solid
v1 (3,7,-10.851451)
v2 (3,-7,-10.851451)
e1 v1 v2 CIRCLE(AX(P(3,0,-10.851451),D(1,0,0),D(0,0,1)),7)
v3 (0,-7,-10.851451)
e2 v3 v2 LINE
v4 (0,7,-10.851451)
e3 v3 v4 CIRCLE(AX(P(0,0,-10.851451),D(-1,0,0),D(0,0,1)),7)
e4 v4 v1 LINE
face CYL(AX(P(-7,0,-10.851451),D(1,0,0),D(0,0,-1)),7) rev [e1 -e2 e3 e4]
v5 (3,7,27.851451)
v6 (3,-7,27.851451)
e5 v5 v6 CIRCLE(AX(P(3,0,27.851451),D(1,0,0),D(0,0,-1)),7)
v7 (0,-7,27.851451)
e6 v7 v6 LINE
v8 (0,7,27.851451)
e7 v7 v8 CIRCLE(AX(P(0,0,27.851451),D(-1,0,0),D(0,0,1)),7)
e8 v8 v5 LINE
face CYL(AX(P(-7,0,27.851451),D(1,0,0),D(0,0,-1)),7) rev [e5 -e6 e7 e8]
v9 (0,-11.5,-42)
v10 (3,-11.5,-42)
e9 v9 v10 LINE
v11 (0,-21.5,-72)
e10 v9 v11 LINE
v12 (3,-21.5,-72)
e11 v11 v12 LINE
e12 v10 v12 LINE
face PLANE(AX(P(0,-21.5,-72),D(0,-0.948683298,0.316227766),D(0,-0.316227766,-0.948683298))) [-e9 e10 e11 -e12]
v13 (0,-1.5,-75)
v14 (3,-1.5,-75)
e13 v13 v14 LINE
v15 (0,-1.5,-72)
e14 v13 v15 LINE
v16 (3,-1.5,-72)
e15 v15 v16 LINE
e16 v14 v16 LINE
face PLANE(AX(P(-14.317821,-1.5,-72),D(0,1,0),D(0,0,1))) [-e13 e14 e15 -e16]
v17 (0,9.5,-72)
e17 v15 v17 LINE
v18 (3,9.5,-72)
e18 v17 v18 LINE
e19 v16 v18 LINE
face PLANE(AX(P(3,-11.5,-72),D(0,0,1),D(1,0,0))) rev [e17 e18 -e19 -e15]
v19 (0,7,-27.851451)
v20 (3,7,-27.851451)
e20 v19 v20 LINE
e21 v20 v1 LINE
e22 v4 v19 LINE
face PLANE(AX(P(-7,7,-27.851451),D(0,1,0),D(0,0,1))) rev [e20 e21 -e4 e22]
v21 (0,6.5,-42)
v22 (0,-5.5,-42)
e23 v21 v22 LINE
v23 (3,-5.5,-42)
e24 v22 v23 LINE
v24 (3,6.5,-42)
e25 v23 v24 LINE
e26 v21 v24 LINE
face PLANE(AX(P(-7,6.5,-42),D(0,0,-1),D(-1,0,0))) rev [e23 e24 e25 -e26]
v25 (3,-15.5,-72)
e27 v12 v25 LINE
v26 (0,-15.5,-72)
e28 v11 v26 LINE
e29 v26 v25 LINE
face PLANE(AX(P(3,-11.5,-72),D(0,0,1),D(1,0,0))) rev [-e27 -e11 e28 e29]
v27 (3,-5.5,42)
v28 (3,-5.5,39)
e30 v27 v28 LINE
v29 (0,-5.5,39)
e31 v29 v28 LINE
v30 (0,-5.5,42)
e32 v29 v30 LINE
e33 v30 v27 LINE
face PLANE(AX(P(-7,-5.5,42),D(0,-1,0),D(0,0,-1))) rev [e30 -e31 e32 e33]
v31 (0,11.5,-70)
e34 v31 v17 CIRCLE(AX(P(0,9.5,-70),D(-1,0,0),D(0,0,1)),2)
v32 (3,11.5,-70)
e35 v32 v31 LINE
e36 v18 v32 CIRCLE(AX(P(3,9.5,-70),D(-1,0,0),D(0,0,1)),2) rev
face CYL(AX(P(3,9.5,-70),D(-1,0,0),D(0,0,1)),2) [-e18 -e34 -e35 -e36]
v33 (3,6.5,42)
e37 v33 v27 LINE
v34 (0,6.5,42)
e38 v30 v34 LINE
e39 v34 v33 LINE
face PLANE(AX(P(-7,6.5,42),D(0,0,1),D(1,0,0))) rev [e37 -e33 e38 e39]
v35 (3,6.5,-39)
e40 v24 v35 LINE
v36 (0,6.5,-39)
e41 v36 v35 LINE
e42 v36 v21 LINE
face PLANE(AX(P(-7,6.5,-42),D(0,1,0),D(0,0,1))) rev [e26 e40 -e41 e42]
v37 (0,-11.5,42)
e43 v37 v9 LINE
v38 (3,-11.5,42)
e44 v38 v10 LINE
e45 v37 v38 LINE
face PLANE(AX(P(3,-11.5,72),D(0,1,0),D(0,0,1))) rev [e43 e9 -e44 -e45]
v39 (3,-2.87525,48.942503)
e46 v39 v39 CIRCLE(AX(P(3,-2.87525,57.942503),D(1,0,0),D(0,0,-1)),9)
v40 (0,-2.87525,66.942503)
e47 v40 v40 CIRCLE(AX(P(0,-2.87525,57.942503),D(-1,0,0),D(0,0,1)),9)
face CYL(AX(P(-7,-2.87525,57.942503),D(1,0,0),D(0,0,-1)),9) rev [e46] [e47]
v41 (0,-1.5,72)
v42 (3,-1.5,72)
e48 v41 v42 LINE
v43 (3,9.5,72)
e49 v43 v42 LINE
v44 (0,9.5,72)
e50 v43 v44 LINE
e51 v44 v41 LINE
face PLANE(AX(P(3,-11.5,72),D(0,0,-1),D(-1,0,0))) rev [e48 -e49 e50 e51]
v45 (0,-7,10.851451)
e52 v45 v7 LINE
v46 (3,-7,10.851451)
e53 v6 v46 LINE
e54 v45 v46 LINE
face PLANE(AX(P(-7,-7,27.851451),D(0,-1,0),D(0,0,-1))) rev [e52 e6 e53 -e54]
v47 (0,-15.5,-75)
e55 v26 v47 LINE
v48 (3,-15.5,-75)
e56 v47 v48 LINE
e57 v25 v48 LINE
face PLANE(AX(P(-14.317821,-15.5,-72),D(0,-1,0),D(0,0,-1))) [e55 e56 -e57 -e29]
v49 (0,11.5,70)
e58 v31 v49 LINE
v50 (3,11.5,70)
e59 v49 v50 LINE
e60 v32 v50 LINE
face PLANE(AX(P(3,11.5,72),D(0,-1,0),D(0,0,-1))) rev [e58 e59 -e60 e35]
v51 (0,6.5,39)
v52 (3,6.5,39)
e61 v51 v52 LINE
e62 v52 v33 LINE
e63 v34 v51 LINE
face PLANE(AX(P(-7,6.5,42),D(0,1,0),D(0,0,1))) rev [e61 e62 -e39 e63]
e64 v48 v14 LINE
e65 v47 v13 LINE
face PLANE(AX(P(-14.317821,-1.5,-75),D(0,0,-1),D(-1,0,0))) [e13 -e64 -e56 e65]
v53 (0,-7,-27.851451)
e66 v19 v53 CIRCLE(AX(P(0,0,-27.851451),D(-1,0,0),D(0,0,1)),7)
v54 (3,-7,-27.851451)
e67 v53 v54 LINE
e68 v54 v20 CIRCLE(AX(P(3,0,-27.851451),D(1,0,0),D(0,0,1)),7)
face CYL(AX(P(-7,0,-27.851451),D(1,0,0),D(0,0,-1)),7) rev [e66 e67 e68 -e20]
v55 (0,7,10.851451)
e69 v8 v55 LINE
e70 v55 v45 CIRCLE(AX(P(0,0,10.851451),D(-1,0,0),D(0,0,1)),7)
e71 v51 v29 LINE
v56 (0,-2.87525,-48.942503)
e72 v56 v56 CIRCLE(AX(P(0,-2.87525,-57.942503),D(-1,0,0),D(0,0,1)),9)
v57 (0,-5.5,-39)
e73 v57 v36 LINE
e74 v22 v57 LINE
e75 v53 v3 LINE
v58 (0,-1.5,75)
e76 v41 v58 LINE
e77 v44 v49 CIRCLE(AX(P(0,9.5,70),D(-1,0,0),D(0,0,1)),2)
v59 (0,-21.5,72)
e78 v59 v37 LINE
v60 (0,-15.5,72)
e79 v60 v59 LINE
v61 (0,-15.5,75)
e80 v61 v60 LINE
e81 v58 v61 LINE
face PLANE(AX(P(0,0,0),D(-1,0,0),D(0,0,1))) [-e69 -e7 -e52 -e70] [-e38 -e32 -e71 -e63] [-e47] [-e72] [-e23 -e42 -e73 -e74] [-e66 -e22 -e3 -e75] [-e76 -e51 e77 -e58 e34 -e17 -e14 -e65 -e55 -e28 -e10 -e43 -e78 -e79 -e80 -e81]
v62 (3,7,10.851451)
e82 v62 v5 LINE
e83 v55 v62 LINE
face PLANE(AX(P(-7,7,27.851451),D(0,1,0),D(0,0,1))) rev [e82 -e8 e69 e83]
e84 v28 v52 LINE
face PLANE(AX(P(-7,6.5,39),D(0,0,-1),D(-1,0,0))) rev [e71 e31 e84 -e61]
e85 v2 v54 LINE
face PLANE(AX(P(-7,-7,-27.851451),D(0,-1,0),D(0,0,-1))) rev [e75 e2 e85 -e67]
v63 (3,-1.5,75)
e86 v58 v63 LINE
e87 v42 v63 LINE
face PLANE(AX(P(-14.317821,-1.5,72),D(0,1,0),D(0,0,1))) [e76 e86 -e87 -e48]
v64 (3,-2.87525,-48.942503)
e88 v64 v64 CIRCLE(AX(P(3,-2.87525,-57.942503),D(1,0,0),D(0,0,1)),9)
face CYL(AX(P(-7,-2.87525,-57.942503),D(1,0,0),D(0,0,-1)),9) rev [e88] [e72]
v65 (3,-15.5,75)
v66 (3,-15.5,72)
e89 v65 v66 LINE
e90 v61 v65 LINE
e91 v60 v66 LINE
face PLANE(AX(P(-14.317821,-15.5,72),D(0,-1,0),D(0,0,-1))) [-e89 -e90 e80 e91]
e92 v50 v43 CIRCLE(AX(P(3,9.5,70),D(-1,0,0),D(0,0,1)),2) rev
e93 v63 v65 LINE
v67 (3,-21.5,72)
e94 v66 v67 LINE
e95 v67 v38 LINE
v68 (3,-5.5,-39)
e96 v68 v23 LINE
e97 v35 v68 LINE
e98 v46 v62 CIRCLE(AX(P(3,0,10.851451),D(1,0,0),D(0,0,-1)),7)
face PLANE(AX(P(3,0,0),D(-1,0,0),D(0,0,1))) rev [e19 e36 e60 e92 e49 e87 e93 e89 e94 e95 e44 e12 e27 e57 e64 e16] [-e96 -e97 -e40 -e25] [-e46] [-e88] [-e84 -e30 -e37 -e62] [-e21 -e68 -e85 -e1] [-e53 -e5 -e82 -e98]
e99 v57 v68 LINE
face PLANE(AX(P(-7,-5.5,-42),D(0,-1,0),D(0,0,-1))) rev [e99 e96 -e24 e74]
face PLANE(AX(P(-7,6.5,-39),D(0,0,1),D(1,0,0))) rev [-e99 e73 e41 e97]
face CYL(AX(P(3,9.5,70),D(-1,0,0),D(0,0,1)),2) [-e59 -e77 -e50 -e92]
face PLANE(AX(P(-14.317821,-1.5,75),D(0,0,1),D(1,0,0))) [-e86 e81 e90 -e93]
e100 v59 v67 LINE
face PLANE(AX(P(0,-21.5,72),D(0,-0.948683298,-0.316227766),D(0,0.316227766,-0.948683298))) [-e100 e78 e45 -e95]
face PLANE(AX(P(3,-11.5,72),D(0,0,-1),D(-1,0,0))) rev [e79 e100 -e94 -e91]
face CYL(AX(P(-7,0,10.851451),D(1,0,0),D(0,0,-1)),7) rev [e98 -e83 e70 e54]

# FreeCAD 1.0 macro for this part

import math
import FreeCAD as App
import Part
import Sketcher
from FreeCAD import Vector
Q = App.Units.Quantity


def edges_at(feature, points):
    """Names of the edges that pass closest to the given points."""
    edges = feature.Shape.Edges
    near = lambda p: min(range(len(edges)), key=lambda i: edges[i].distToShape(Part.Vertex(*p))[0])
    return sorted({f"Edge{near(p) + 1}" for p in points})

doc = App.newDocument("Part")
body = doc.addObject("PartDesign::Body", "Body")

sketch1 = doc.addObject("Sketcher::SketchObject", "Sketch")
body.addObject(sketch1)
sketch1.AttachmentSupport = (doc.YZ_Plane, [""])
sketch1.MapMode = "FlatFace"
sketch1.addGeometry(Part.LineSegment(Vector(12, 72, 0), Vector(-12, 72, 0)), False)
sketch1.addGeometry(Part.LineSegment(Vector(-12, 72, 0), Vector(-12, -72, 0)), False)
sketch1.addGeometry(Part.LineSegment(Vector(-12, -72, 0), Vector(12, -72, 0)), False)
sketch1.addGeometry(Part.LineSegment(Vector(12, -72, 0), Vector(12, 72, 0)), False)
sketch1.addConstraint(Sketcher.Constraint("Coincident", 0, 2, 1, 1))
sketch1.addConstraint(Sketcher.Constraint("Coincident", 1, 2, 2, 1))
sketch1.addConstraint(Sketcher.Constraint("Coincident", 2, 2, 3, 1))
sketch1.addConstraint(Sketcher.Constraint("Coincident", 3, 2, 0, 1))
sketch1.addConstraint(Sketcher.Constraint("Horizontal", 0))
sketch1.addConstraint(Sketcher.Constraint("Vertical", 1))
sketch1.addConstraint(Sketcher.Constraint("Horizontal", 2))
sketch1.addConstraint(Sketcher.Constraint("Vertical", 3))
sketch1.addConstraint(Sketcher.Constraint("Symmetric", 0, 2, 2, 2, -1, 1))
sketch1.addConstraint(Sketcher.Constraint("DistanceX", 0, 2, 0, 1, Q("23 mm")))
sketch1.addConstraint(Sketcher.Constraint("DistanceY", 1, 2, 1, 1, Q("144 mm")))
pad1 = doc.addObject("PartDesign::Pad", "Pad")
body.addObject(pad1)
pad1.Profile = sketch1
pad1.Length = 3
doc.recompute()

fillet = doc.addObject("PartDesign::Fillet", "Fillet")
body.addObject(fillet)
fillet.Base = (pad1, edges_at(pad1, [(1.5, 11.5, 72), (1.5, 11.5, -72)]))
fillet.Radius = 2

sketch2 = doc.addObject("Sketcher::SketchObject", "Sketch001")
body.addObject(sketch2)
sketch2.AttachmentSupport = (doc.YZ_Plane, [""])
sketch2.MapMode = "FlatFace"
sketch2.AttachmentOffset = App.Placement(Vector(0, 0, 3), App.Rotation())
sketch2.addGeometry(Part.LineSegment(Vector(-12, 72, 0), Vector(-22, 72, 0)), False)
sketch2.addGeometry(Part.LineSegment(Vector(-22, 72, 0), Vector(-12, 42, 0)), False)
sketch2.addGeometry(Part.LineSegment(Vector(-12, 42, 0), Vector(-12, 72, 0)), False)
sketch2.addGeometry(Part.LineSegment(Vector(-22, -72, 0), Vector(-12, -72, 0)), False)
sketch2.addGeometry(Part.LineSegment(Vector(-12, -72, 0), Vector(-12, -42, 0)), False)
sketch2.addGeometry(Part.LineSegment(Vector(-12, -42, 0), Vector(-22, -72, 0)), False)
sketch2.addConstraint(Sketcher.Constraint("Coincident", 0, 2, 1, 1))
sketch2.addConstraint(Sketcher.Constraint("Coincident", 1, 2, 2, 1))
sketch2.addConstraint(Sketcher.Constraint("Coincident", 2, 2, 0, 1))
sketch2.addConstraint(Sketcher.Constraint("Coincident", 3, 2, 4, 1))
sketch2.addConstraint(Sketcher.Constraint("Coincident", 4, 2, 5, 1))
sketch2.addConstraint(Sketcher.Constraint("Coincident", 5, 2, 3, 1))
sketch2.addConstraint(Sketcher.Constraint("Horizontal", 0))
sketch2.addConstraint(Sketcher.Constraint("Vertical", 2))
sketch2.addConstraint(Sketcher.Constraint("Horizontal", 3))
sketch2.addConstraint(Sketcher.Constraint("Vertical", 4))
sketch2.addConstraint(Sketcher.Constraint("Symmetric", 2, 2, 3, 2, -1))
sketch2.addConstraint(Sketcher.Constraint("Vertical", 0, 2, 5, 2))
sketch2.addConstraint(Sketcher.Constraint("Equal", 2, 4))
sketch2.addConstraint(Sketcher.Constraint("DistanceX", 0, 2, 0, 1, Q("10 mm")))
sketch2.addConstraint(Sketcher.Constraint("DistanceY", 2, 1, 2, 2, Q("30 mm")))
sketch2.addConstraint(Sketcher.Constraint("DistanceY", -1, 1, 0, 2, Q("72 mm")))
sketch2.addConstraint(Sketcher.Constraint("DistanceX", 0, 2, -1, 1, Q("21.5 mm")))
pad2 = doc.addObject("PartDesign::Pad", "Pad001")
body.addObject(pad2)
pad2.Profile = sketch2
pad2.Length = 3
pad2.Reversed = True

sketch3 = doc.addObject("Sketcher::SketchObject", "Sketch002")
body.addObject(sketch3)
sketch3.AttachmentSupport = (doc.YZ_Plane, [""])
sketch3.MapMode = "FlatFace"
sketch3.AttachmentOffset = App.Placement(Vector(0, 0, 3), App.Rotation())
sketch3.addGeometry(Part.LineSegment(Vector(-1.5, 75, 0), Vector(-15.5, 75, 0)), False)
sketch3.addGeometry(Part.LineSegment(Vector(-15.5, 75, 0), Vector(-15.5, 72, 0)), False)
sketch3.addGeometry(Part.LineSegment(Vector(-15.5, 72, 0), Vector(-1.5, 72, 0)), False)
sketch3.addGeometry(Part.LineSegment(Vector(-1.5, 72, 0), Vector(-1.5, 75, 0)), False)
sketch3.addGeometry(Part.LineSegment(Vector(-1.5, -72, 0), Vector(-15.5, -72, 0)), False)
sketch3.addGeometry(Part.LineSegment(Vector(-15.5, -72, 0), Vector(-15.5, -75, 0)), False)
sketch3.addGeometry(Part.LineSegment(Vector(-15.5, -75, 0), Vector(-1.5, -75, 0)), False)
sketch3.addGeometry(Part.LineSegment(Vector(-1.5, -75, 0), Vector(-1.5, -72, 0)), False)
sketch3.addConstraint(Sketcher.Constraint("Coincident", 0, 2, 1, 1))
sketch3.addConstraint(Sketcher.Constraint("Coincident", 1, 2, 2, 1))
sketch3.addConstraint(Sketcher.Constraint("Coincident", 2, 2, 3, 1))
sketch3.addConstraint(Sketcher.Constraint("Coincident", 3, 2, 0, 1))
sketch3.addConstraint(Sketcher.Constraint("Coincident", 4, 2, 5, 1))
sketch3.addConstraint(Sketcher.Constraint("Coincident", 5, 2, 6, 1))
sketch3.addConstraint(Sketcher.Constraint("Coincident", 6, 2, 7, 1))
sketch3.addConstraint(Sketcher.Constraint("Coincident", 7, 2, 4, 1))
sketch3.addConstraint(Sketcher.Constraint("Horizontal", 0))
sketch3.addConstraint(Sketcher.Constraint("Vertical", 1))
sketch3.addConstraint(Sketcher.Constraint("Horizontal", 2))
sketch3.addConstraint(Sketcher.Constraint("Vertical", 3))
sketch3.addConstraint(Sketcher.Constraint("Horizontal", 4))
sketch3.addConstraint(Sketcher.Constraint("Vertical", 5))
sketch3.addConstraint(Sketcher.Constraint("Horizontal", 6))
sketch3.addConstraint(Sketcher.Constraint("Vertical", 7))
sketch3.addConstraint(Sketcher.Constraint("Symmetric", 1, 2, 4, 2, -1))
sketch3.addConstraint(Sketcher.Constraint("Symmetric", 3, 2, 6, 2, -1))
sketch3.addConstraint(Sketcher.Constraint("DistanceX", 0, 2, 0, 1, Q("14 mm")))
sketch3.addConstraint(Sketcher.Constraint("DistanceY", 1, 2, 1, 1, Q("3 mm")))
sketch3.addConstraint(Sketcher.Constraint("DistanceY", -1, 1, 0, 2, Q("75 mm")))
sketch3.addConstraint(Sketcher.Constraint("DistanceX", 0, 2, -1, 1, Q("15.5 mm")))
pad3 = doc.addObject("PartDesign::Pad", "Pad002")
body.addObject(pad3)
pad3.Profile = sketch3
pad3.Length = 3
pad3.Reversed = True

sketch4 = doc.addObject("Sketcher::SketchObject", "Sketch003")
body.addObject(sketch4)
sketch4.AttachmentSupport = (doc.YZ_Plane, [""])
sketch4.MapMode = "FlatFace"
sketch4.AttachmentOffset = App.Placement(Vector(0, 0, 3), App.Rotation())
sketch4.addGeometry(Part.Circle(Vector(-2.9, 57.9, 0), Vector(0, 0, 1), 9), False)
sketch4.addGeometry(Part.Circle(Vector(-2.9, -57.9, 0), Vector(0, 0, 1), 9), False)
sketch4.addGeometry(Part.LineSegment(Vector(6.5, 42, 0), Vector(-5.5, 42, 0)), False)
sketch4.addGeometry(Part.LineSegment(Vector(-5.5, 42, 0), Vector(-5.5, 39, 0)), False)
sketch4.addGeometry(Part.LineSegment(Vector(-5.5, 39, 0), Vector(6.5, 39, 0)), False)
sketch4.addGeometry(Part.LineSegment(Vector(6.5, 39, 0), Vector(6.5, 42, 0)), False)
sketch4.addGeometry(Part.LineSegment(Vector(6.5, -39, 0), Vector(-5.5, -39, 0)), False)
sketch4.addGeometry(Part.LineSegment(Vector(-5.5, -39, 0), Vector(-5.5, -42, 0)), False)
sketch4.addGeometry(Part.LineSegment(Vector(-5.5, -42, 0), Vector(6.5, -42, 0)), False)
sketch4.addGeometry(Part.LineSegment(Vector(6.5, -42, 0), Vector(6.5, -39, 0)), False)
sketch4.addGeometry(Part.LineSegment(Vector(7, 10.9, 0), Vector(7, 27.9, 0)), False)
sketch4.addGeometry(Part.ArcOfCircle(Part.Circle(Vector(0, 27.9, 0), Vector(0, 0, 1), 7), math.radians(0), math.radians(180)), False)
sketch4.addGeometry(Part.LineSegment(Vector(-7, 27.9, 0), Vector(-7, 10.9, 0)), False)
sketch4.addGeometry(Part.ArcOfCircle(Part.Circle(Vector(0, 10.9, 0), Vector(0, 0, 1), 7), math.radians(180), math.radians(360)), False)
sketch4.addGeometry(Part.LineSegment(Vector(7, -27.9, 0), Vector(7, -10.9, 0)), False)
sketch4.addGeometry(Part.ArcOfCircle(Part.Circle(Vector(0, -10.9, 0), Vector(0, 0, 1), 7), math.radians(0), math.radians(180)), False)
sketch4.addGeometry(Part.LineSegment(Vector(-7, -10.9, 0), Vector(-7, -27.9, 0)), False)
sketch4.addGeometry(Part.ArcOfCircle(Part.Circle(Vector(0, -27.9, 0), Vector(0, 0, 1), 7), math.radians(180), math.radians(360)), False)
sketch4.addConstraint(Sketcher.Constraint("Coincident", 2, 2, 3, 1))
sketch4.addConstraint(Sketcher.Constraint("Coincident", 3, 2, 4, 1))
sketch4.addConstraint(Sketcher.Constraint("Coincident", 4, 2, 5, 1))
sketch4.addConstraint(Sketcher.Constraint("Coincident", 5, 2, 2, 1))
sketch4.addConstraint(Sketcher.Constraint("Coincident", 6, 2, 7, 1))
sketch4.addConstraint(Sketcher.Constraint("Coincident", 7, 2, 8, 1))
sketch4.addConstraint(Sketcher.Constraint("Coincident", 8, 2, 9, 1))
sketch4.addConstraint(Sketcher.Constraint("Coincident", 9, 2, 6, 1))
sketch4.addConstraint(Sketcher.Constraint("Tangent", 10, 2, 11, 1))
sketch4.addConstraint(Sketcher.Constraint("Tangent", 11, 2, 12, 1))
sketch4.addConstraint(Sketcher.Constraint("Tangent", 12, 2, 13, 1))
sketch4.addConstraint(Sketcher.Constraint("Tangent", 13, 2, 10, 1))
sketch4.addConstraint(Sketcher.Constraint("Tangent", 14, 2, 15, 1))
sketch4.addConstraint(Sketcher.Constraint("Tangent", 15, 2, 16, 1))
sketch4.addConstraint(Sketcher.Constraint("Tangent", 16, 2, 17, 1))
sketch4.addConstraint(Sketcher.Constraint("Tangent", 17, 2, 14, 1))
sketch4.addConstraint(Sketcher.Constraint("Horizontal", 2))
sketch4.addConstraint(Sketcher.Constraint("Vertical", 3))
sketch4.addConstraint(Sketcher.Constraint("Horizontal", 4))
sketch4.addConstraint(Sketcher.Constraint("Vertical", 5))
sketch4.addConstraint(Sketcher.Constraint("Horizontal", 6))
sketch4.addConstraint(Sketcher.Constraint("Vertical", 7))
sketch4.addConstraint(Sketcher.Constraint("Horizontal", 8))
sketch4.addConstraint(Sketcher.Constraint("Vertical", 9))
sketch4.addConstraint(Sketcher.Constraint("Vertical", 10))
sketch4.addConstraint(Sketcher.Constraint("Vertical", 12))
sketch4.addConstraint(Sketcher.Constraint("Vertical", 14))
sketch4.addConstraint(Sketcher.Constraint("Vertical", 16))
sketch4.addConstraint(Sketcher.Constraint("Equal", 0, 1))
sketch4.addConstraint(Sketcher.Constraint("Equal", 13, 15))
sketch4.addConstraint(Sketcher.Constraint("Symmetric", 13, 3, 15, 3, -1, 1))
sketch4.addConstraint(Sketcher.Constraint("Symmetric", 0, 3, 1, 3, -1))
sketch4.addConstraint(Sketcher.Constraint("Symmetric", 11, 3, 17, 3, -1))
sketch4.addConstraint(Sketcher.Constraint("Symmetric", 3, 2, 6, 2, -1))
sketch4.addConstraint(Sketcher.Constraint("Symmetric", 5, 2, 8, 2, -1))
sketch4.addConstraint(Sketcher.Constraint("Diameter", 0, Q("18 mm")))
sketch4.addConstraint(Sketcher.Constraint("Radius", 11, Q("7 mm")))
sketch4.addConstraint(Sketcher.Constraint("DistanceX", 2, 2, 2, 1, Q("12 mm")))
sketch4.addConstraint(Sketcher.Constraint("DistanceY", 3, 2, 3, 1, Q("3 mm")))
sketch4.addConstraint(Sketcher.Constraint("DistanceY", 10, 1, 10, 2, Q("17 mm")))
sketch4.addConstraint(Sketcher.Constraint("DistanceY", -1, 1, 2, 2, Q("42 mm")))
sketch4.addConstraint(Sketcher.Constraint("DistanceX", 2, 2, -1, 1, Q("5.5 mm")))
sketch4.addConstraint(Sketcher.Constraint("DistanceY", 15, 3, 13, 3, Q("21.702902 mm")))
sketch4.addConstraint(Sketcher.Constraint("DistanceX", 0, 3, -1, 1, Q("2.87525 mm")))
sketch4.addConstraint(Sketcher.Constraint("DistanceY", -1, 1, 0, 3, Q("57.942503 mm")))
pocket1 = doc.addObject("PartDesign::Pocket", "Pocket")
body.addObject(pocket1)
pocket1.Profile = sketch4
pocket1.Length = 10

doc.recompute()
